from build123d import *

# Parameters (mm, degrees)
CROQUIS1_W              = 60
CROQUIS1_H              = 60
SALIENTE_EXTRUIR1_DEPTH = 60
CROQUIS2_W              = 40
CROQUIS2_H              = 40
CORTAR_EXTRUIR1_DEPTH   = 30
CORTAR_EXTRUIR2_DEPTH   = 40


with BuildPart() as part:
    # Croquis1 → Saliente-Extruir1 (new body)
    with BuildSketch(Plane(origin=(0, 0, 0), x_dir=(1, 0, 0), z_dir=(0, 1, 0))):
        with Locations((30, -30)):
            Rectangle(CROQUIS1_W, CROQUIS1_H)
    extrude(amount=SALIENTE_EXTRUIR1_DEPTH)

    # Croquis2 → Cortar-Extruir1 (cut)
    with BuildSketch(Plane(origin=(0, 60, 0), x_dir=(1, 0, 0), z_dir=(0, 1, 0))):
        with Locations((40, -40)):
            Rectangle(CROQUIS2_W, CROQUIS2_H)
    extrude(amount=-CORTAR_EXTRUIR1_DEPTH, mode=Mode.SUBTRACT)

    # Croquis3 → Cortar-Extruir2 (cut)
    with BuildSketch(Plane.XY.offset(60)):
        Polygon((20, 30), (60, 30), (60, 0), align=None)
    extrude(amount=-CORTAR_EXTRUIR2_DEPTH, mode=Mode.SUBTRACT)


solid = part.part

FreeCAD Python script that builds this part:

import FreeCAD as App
import Part
import Sketcher

V = App.Vector
Q = App.Units.Quantity


def add_polygon(sketch, points):
    """Adds a closed chain of lines whose ends are joined by coincident constraints."""
    first, n = sketch.GeometryCount, len(points)
    for a, b in zip(points, points[1:] + points[:1]):
        sketch.addGeometry(Part.LineSegment(App.Vector(*a, 0), App.Vector(*b, 0)), False)
    for i in range(n):
        sketch.addConstraint(Sketcher.Constraint("Coincident", first + i, 2, first + (i + 1) % n, 1))

doc = App.newDocument("Part")
body = doc.addObject("PartDesign::Body", "Body")

# Sketch on XZ plane
sketch1 = body.newObject("Sketcher::SketchObject", "Sketch")
sketch1.AttachmentSupport = (doc.getObject("XZ_Plane"), [""])
sketch1.MapMode = "FlatFace"
add_polygon(sketch1, [(0, 0), (0, 60), (60, 60), (60, 0)])  # lines 0-3
sketch1.addConstraint([
    Sketcher.Constraint("Vertical", 0),
    Sketcher.Constraint("Horizontal", 1),
    Sketcher.Constraint("Vertical", 2),
    Sketcher.Constraint("Horizontal", 3),
    Sketcher.Constraint("Coincident", 3, 2, -1, 1),
    Sketcher.Constraint("Equal", 3, 0),
    Sketcher.Constraint("DistanceX", 1, 1, 1, 2, Q("60 mm")),
])
pad1 = body.newObject("PartDesign::Pad", "Pad")
pad1.Profile = sketch1
pad1.Length = 60
pad1.Reversed = True

# Sketch on XZ plane
sketch2 = body.newObject("Sketcher::SketchObject", "Sketch001")
sketch2.AttachmentSupport = (doc.getObject("XZ_Plane"), [""])
sketch2.MapMode = "FlatFace"
sketch2.AttachmentOffset = App.Placement(V(0, 0, -60), App.Rotation())
add_polygon(sketch2, [(20, 20), (20, 60), (60, 60), (60, 20)])  # lines 0-3
sketch2.addConstraint([
    Sketcher.Constraint("Vertical", 0),
    Sketcher.Constraint("Horizontal", 1),
    Sketcher.Constraint("Vertical", 2),
    Sketcher.Constraint("Horizontal", 3),
    Sketcher.Constraint("Equal", 3, 0),
    Sketcher.Constraint("DistanceX", 1, 1, 1, 2, Q("40 mm")),
    Sketcher.Constraint("DistanceX", -1, 1, 0, 2, Q("20 mm")),
    Sketcher.Constraint("DistanceY", -1, 1, 0, 2, Q("60 mm")),
])
pocket1 = body.newObject("PartDesign::Pocket", "Pocket")
pocket1.Profile = sketch2
pocket1.Length = 30
pocket1.Reversed = True

# Sketch on XY plane
sketch3 = body.newObject("Sketcher::SketchObject", "Sketch002")
sketch3.AttachmentSupport = (doc.getObject("XY_Plane"), [""])
sketch3.MapMode = "FlatFace"
sketch3.AttachmentOffset = App.Placement(V(0, 0, 60), App.Rotation())
add_polygon(sketch3, [(60, 30), (20, 30), (60, 0)])  # lines 0-2
sketch3.addConstraint([
    Sketcher.Constraint("Horizontal", 0),
    Sketcher.Constraint("Vertical", 2),
    Sketcher.Constraint("PointOnObject", 1, 2, -1),
    Sketcher.Constraint("DistanceX", 0, 2, 0, 1, Q("40 mm")),
    Sketcher.Constraint("DistanceY", 2, 1, 2, 2, Q("30 mm")),
    Sketcher.Constraint("DistanceX", -1, 1, 0, 2, Q("20 mm")),
])
pocket2 = body.newObject("PartDesign::Pocket", "Pocket001")
pocket2.Profile = sketch3
pocket2.Length = 40

doc.recompute()
